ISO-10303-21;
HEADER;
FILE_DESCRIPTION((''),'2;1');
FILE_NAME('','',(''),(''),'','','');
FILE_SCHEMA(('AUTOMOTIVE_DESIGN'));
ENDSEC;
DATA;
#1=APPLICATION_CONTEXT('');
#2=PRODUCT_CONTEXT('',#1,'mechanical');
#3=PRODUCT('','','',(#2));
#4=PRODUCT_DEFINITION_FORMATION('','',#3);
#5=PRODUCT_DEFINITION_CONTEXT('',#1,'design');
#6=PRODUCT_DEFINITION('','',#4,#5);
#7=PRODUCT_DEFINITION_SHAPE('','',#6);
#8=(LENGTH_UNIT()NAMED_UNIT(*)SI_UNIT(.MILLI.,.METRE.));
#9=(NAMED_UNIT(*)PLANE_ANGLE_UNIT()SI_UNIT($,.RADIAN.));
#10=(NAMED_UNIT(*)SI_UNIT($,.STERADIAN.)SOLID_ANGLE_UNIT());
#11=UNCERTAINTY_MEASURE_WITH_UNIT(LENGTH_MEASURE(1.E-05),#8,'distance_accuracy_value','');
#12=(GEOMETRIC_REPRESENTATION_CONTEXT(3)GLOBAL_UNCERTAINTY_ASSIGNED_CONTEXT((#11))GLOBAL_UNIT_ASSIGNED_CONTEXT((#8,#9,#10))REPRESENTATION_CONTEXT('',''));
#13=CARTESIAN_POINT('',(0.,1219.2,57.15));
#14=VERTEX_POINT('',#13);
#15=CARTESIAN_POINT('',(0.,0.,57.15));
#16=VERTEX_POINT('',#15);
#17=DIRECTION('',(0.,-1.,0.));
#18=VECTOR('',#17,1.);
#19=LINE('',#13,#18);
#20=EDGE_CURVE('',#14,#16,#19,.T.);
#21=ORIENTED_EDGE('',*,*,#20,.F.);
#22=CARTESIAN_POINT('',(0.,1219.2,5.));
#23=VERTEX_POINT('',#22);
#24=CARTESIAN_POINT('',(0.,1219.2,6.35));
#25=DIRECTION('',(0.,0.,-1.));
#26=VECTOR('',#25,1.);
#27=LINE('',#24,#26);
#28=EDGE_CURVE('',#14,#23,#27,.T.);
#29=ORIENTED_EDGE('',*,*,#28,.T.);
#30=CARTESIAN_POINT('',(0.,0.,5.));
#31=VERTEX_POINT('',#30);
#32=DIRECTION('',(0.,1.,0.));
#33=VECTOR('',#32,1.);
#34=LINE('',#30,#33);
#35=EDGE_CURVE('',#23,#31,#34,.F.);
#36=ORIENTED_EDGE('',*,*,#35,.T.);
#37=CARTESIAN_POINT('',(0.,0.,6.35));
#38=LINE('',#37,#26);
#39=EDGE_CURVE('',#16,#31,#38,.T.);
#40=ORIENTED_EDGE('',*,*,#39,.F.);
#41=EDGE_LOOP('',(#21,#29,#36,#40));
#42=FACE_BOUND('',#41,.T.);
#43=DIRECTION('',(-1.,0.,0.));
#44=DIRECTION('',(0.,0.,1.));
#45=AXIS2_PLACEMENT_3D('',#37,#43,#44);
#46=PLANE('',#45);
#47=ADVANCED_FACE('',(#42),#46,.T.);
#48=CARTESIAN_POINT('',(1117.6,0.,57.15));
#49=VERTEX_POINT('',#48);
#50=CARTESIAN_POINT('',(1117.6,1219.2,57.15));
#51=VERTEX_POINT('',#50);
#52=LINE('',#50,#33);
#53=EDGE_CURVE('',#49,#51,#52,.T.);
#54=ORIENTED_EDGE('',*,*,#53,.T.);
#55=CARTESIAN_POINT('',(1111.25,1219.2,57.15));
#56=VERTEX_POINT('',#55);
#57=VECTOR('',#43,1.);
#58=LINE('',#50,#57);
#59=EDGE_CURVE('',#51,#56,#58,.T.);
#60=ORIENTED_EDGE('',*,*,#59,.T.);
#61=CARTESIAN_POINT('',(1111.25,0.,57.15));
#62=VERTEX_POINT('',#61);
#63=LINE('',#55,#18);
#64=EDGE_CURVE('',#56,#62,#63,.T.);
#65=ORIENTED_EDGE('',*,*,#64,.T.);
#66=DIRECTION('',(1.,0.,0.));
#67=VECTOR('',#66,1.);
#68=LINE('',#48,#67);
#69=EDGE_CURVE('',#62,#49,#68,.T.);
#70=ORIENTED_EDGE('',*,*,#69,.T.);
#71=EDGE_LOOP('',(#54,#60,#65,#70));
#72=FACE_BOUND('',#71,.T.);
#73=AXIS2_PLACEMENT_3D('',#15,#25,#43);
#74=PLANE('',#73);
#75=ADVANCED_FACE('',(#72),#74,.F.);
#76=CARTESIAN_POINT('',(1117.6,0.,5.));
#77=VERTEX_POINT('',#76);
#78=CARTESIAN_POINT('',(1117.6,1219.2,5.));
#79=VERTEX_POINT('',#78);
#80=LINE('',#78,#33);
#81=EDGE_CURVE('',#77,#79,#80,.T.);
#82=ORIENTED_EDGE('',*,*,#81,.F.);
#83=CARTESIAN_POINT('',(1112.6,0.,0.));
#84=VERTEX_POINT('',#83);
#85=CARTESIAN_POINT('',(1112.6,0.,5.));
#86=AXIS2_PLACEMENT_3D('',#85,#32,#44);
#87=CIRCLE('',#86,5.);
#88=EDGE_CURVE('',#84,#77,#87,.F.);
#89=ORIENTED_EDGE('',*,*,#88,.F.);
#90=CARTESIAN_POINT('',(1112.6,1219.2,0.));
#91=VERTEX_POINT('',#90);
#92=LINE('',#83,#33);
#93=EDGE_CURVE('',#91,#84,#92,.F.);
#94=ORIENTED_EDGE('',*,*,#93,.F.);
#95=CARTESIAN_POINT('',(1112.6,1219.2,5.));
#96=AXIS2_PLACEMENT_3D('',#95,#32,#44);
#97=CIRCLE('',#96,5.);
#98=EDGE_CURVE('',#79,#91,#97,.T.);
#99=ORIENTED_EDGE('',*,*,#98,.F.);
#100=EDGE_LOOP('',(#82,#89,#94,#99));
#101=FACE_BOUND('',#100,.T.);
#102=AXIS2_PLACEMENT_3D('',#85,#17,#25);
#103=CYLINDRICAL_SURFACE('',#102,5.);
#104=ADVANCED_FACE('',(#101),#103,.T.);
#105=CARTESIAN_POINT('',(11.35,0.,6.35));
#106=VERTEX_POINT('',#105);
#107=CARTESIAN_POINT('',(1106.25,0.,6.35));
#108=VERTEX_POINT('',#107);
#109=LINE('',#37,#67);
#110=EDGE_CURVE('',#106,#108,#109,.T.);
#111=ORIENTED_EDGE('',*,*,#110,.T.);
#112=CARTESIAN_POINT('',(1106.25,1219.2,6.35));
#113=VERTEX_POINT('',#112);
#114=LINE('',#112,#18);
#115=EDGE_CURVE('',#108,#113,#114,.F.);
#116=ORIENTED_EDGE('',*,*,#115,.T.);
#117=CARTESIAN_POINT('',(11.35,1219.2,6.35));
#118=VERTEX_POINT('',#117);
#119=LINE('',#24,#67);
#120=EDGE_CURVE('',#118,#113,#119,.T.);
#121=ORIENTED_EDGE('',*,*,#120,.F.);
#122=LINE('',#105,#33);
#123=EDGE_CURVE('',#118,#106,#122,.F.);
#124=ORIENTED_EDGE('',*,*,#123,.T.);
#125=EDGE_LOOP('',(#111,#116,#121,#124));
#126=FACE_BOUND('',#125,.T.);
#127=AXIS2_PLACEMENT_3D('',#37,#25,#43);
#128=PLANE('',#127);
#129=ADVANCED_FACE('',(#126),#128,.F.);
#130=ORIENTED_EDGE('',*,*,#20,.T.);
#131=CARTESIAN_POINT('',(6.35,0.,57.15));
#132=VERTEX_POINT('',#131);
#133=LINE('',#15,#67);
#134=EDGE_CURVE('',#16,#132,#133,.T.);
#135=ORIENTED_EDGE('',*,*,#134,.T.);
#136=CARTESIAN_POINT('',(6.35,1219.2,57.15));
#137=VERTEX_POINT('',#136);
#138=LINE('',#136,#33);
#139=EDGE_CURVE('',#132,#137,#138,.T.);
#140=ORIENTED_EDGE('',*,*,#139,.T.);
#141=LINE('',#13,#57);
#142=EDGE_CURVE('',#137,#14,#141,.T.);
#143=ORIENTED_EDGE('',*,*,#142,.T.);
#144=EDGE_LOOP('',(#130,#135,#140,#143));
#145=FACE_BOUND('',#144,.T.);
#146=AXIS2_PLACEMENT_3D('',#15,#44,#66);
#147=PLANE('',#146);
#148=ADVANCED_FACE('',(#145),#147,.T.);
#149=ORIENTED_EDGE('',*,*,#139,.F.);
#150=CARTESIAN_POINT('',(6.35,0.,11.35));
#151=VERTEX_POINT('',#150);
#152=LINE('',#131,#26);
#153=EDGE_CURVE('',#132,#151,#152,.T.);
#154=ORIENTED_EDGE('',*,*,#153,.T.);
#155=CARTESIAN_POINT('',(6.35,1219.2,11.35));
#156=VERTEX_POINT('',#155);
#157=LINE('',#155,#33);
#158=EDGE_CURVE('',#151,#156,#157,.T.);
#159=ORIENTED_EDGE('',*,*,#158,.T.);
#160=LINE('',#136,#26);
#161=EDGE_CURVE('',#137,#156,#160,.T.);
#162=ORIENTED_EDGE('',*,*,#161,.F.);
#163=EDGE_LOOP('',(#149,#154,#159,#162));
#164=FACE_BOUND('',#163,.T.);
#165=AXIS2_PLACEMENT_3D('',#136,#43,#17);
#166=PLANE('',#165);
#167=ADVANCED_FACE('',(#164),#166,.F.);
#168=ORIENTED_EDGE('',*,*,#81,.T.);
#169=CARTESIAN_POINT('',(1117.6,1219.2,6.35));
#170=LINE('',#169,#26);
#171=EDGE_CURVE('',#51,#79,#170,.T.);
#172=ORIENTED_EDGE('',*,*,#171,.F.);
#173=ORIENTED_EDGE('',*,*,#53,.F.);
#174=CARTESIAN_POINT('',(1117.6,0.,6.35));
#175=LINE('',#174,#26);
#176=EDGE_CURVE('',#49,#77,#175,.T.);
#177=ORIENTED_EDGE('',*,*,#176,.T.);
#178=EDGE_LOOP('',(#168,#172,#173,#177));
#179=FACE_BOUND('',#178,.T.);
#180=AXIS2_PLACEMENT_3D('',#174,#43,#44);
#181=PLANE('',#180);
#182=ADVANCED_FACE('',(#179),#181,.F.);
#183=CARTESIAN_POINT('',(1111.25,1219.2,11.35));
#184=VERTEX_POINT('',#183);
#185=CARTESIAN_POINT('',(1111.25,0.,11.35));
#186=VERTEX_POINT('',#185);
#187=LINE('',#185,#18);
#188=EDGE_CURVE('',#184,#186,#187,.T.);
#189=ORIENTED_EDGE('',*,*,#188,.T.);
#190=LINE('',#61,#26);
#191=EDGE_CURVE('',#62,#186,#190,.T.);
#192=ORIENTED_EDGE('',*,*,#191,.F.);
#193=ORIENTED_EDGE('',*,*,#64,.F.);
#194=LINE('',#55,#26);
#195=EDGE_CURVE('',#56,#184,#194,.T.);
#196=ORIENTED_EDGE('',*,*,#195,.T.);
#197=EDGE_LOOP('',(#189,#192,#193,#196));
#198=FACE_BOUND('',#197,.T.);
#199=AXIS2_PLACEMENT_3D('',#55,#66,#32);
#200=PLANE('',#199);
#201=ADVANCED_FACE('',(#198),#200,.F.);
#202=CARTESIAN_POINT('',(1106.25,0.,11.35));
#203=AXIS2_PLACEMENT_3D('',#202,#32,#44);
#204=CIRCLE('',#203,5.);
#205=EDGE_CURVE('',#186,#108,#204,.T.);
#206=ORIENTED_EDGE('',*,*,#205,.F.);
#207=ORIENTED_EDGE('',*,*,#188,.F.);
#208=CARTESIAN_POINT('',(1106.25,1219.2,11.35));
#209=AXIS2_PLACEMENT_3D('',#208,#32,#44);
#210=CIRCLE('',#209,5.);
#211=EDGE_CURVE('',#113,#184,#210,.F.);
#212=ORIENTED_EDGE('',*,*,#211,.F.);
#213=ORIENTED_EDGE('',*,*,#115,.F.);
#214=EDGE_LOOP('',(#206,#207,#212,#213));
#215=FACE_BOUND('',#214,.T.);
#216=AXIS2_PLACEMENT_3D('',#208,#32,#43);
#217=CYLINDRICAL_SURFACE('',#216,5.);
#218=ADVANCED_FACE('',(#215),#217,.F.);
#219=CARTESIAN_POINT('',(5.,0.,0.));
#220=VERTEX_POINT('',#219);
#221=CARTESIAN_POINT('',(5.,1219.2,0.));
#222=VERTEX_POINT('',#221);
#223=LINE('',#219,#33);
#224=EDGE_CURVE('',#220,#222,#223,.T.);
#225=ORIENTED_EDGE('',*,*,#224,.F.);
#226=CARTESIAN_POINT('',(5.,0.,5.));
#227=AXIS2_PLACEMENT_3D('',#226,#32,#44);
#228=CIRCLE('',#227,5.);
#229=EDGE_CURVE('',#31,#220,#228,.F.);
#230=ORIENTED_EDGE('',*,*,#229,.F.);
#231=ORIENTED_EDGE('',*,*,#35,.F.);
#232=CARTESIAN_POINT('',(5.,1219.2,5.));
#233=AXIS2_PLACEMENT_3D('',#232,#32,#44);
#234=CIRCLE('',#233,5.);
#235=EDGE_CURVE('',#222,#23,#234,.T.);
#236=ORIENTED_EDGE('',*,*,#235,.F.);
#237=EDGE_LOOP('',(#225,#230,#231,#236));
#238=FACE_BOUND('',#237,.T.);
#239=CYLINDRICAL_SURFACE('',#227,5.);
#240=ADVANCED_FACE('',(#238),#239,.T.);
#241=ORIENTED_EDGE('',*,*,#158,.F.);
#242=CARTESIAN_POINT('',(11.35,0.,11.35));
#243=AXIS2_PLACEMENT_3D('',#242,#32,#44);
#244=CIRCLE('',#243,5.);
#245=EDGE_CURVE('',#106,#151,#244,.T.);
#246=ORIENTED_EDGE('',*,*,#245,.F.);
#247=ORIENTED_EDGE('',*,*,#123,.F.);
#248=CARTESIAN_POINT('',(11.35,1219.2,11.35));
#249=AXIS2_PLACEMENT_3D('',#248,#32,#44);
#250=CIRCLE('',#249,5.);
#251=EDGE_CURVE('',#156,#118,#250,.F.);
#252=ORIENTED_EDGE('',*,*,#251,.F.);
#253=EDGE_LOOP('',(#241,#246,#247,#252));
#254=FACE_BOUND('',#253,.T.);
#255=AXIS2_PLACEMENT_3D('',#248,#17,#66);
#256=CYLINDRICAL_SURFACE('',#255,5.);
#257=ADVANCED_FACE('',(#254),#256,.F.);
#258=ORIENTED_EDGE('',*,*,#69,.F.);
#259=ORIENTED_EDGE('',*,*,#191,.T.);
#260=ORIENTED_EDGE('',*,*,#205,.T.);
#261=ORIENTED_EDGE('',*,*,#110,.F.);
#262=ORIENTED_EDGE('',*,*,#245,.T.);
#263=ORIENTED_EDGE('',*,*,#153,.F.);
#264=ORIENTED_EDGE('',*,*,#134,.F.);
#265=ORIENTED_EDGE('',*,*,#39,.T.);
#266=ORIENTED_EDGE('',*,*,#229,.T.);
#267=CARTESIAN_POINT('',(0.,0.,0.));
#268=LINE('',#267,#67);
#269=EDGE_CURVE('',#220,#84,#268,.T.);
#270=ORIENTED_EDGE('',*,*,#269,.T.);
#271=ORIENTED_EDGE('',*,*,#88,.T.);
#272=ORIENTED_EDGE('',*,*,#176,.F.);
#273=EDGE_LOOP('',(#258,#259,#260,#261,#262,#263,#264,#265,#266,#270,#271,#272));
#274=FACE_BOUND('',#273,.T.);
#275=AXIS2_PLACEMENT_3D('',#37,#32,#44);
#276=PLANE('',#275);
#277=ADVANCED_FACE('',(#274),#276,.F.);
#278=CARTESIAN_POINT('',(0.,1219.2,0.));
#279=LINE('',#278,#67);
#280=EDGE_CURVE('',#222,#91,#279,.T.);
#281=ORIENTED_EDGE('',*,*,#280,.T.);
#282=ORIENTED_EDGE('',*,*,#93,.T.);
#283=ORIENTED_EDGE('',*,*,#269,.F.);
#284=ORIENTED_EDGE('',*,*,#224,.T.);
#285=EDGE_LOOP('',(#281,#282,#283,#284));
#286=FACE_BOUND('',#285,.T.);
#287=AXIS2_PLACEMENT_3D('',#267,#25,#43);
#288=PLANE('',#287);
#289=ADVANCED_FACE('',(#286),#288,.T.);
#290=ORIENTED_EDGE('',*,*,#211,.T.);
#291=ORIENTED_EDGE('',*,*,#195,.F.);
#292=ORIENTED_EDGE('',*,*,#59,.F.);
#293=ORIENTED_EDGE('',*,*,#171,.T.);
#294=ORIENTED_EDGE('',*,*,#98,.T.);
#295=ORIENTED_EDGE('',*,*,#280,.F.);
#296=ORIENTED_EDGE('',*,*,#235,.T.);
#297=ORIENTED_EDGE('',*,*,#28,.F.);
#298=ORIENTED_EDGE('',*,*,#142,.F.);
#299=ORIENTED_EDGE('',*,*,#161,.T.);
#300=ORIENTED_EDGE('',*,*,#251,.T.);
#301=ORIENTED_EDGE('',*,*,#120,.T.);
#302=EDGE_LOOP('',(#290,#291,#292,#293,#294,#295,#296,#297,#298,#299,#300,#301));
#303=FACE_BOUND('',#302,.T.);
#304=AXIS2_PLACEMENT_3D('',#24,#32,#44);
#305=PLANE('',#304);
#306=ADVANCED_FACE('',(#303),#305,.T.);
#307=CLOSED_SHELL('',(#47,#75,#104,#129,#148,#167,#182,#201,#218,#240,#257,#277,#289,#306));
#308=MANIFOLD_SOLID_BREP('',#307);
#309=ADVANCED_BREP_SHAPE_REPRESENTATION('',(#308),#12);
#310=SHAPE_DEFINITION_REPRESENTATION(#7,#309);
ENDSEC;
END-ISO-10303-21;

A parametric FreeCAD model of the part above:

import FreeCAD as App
import Part
import Sketcher
from FreeCAD import Vector
Q = App.Units.Quantity


def edges_at(feature, points):
    """Names of the edges that pass closest to the given points."""
    edges = feature.Shape.Edges
    near = lambda p: min(range(len(edges)), key=lambda i: edges[i].distToShape(Part.Vertex(*p))[0])
    return sorted({f"Edge{near(p) + 1}" for p in points})


def add_polygon(sketch, points):
    """Adds a closed chain of lines whose ends are joined by coincident constraints."""
    first, n = sketch.GeometryCount, len(points)
    for a, b in zip(points, points[1:] + points[:1]):
        sketch.addGeometry(Part.LineSegment(App.Vector(*a, 0), App.Vector(*b, 0)), False)
    for i in range(n):
        sketch.addConstraint(Sketcher.Constraint("Coincident", first + i, 2, first + (i + 1) % n, 1))

doc = App.newDocument("Part")
body = doc.addObject("PartDesign::Body", "Body")

# Sketch on XY plane
sketch1 = body.newObject("Sketcher::SketchObject", "Sketch")
sketch1.AttachmentSupport = (doc.getObject("XY_Plane"), [""])
sketch1.MapMode = "FlatFace"
add_polygon(sketch1, [(0, 1219.2), (0, 0), (1117.6, 0), (1117.6, 1219.2)])  # lines 0-3
sketch1.addConstraint([
    Sketcher.Constraint("Vertical", 0),
    Sketcher.Constraint("Horizontal", 1),
    Sketcher.Constraint("Vertical", 2),
    Sketcher.Constraint("Horizontal", 3),
    Sketcher.Constraint("Coincident", 0, 2, -1, 1),
    Sketcher.Constraint("DistanceX", 1, 1, 1, 2, Q("44 in")),
    Sketcher.Constraint("DistanceY", 0, 2, 0, 1, Q("48 in")),
])
pad1 = body.newObject("PartDesign::Pad", "Pad")
pad1.Profile = sketch1
pad1.Length = Q("0.25 in")

# Sketch on XY plane
sketch2 = body.newObject("Sketcher::SketchObject", "Sketch001")
sketch2.AttachmentSupport = (doc.getObject("XY_Plane"), [""])
sketch2.MapMode = "FlatFace"
sketch2.AttachmentOffset = App.Placement(Vector(0, 0, 0.25 * 25.4), App.Rotation())
add_polygon(sketch2, [(0, 1219.2), (0, 0), (6.35, 0), (6.35, 1219.2)])  # lines 0-3
add_polygon(sketch2, [(1111.25, 1219.2), (1111.25, 0), (1117.6, 0), (1117.6, 1219.2)])  # lines 4-7
sketch2.addConstraint([
    Sketcher.Constraint("Vertical", 0),
    Sketcher.Constraint("Horizontal", 1),
    Sketcher.Constraint("Vertical", 2),
    Sketcher.Constraint("Horizontal", 3),
    Sketcher.Constraint("Vertical", 4),
    Sketcher.Constraint("Horizontal", 5),
    Sketcher.Constraint("Vertical", 6),
    Sketcher.Constraint("Horizontal", 7),
    Sketcher.Constraint("Coincident", 0, 2, -1, 1),
    Sketcher.Constraint("PointOnObject", 4, 2, -1),
    Sketcher.Constraint("Horizontal", 3, 2, 6, 2),
    Sketcher.Constraint("Equal", 3, 5),
    Sketcher.Constraint("DistanceY", 0, 2, 0, 1, Q("48 in")),
    Sketcher.Constraint("DistanceX", -1, 1, 5, 2, Q("44 in")),
    Sketcher.Constraint("DistanceX", 1, 1, 1, 2, Q("0.25 in")),
])
pad2 = body.newObject("PartDesign::Pad", "Pad001")
pad2.Profile = sketch2
pad2.Length = Q("2 in")
doc.recompute()

fillet = body.newObject("PartDesign::Fillet", "Fillet")
fillet.Base = (pad2, edges_at(pad2, [
    (6.35, 609.6, 6.35),
    (1111.25, 609.6, 6.35),
    (1117.6, 609.6, 0),
    (0, 609.6, 0),
]))
fillet.Radius = 5

doc.recompute()
